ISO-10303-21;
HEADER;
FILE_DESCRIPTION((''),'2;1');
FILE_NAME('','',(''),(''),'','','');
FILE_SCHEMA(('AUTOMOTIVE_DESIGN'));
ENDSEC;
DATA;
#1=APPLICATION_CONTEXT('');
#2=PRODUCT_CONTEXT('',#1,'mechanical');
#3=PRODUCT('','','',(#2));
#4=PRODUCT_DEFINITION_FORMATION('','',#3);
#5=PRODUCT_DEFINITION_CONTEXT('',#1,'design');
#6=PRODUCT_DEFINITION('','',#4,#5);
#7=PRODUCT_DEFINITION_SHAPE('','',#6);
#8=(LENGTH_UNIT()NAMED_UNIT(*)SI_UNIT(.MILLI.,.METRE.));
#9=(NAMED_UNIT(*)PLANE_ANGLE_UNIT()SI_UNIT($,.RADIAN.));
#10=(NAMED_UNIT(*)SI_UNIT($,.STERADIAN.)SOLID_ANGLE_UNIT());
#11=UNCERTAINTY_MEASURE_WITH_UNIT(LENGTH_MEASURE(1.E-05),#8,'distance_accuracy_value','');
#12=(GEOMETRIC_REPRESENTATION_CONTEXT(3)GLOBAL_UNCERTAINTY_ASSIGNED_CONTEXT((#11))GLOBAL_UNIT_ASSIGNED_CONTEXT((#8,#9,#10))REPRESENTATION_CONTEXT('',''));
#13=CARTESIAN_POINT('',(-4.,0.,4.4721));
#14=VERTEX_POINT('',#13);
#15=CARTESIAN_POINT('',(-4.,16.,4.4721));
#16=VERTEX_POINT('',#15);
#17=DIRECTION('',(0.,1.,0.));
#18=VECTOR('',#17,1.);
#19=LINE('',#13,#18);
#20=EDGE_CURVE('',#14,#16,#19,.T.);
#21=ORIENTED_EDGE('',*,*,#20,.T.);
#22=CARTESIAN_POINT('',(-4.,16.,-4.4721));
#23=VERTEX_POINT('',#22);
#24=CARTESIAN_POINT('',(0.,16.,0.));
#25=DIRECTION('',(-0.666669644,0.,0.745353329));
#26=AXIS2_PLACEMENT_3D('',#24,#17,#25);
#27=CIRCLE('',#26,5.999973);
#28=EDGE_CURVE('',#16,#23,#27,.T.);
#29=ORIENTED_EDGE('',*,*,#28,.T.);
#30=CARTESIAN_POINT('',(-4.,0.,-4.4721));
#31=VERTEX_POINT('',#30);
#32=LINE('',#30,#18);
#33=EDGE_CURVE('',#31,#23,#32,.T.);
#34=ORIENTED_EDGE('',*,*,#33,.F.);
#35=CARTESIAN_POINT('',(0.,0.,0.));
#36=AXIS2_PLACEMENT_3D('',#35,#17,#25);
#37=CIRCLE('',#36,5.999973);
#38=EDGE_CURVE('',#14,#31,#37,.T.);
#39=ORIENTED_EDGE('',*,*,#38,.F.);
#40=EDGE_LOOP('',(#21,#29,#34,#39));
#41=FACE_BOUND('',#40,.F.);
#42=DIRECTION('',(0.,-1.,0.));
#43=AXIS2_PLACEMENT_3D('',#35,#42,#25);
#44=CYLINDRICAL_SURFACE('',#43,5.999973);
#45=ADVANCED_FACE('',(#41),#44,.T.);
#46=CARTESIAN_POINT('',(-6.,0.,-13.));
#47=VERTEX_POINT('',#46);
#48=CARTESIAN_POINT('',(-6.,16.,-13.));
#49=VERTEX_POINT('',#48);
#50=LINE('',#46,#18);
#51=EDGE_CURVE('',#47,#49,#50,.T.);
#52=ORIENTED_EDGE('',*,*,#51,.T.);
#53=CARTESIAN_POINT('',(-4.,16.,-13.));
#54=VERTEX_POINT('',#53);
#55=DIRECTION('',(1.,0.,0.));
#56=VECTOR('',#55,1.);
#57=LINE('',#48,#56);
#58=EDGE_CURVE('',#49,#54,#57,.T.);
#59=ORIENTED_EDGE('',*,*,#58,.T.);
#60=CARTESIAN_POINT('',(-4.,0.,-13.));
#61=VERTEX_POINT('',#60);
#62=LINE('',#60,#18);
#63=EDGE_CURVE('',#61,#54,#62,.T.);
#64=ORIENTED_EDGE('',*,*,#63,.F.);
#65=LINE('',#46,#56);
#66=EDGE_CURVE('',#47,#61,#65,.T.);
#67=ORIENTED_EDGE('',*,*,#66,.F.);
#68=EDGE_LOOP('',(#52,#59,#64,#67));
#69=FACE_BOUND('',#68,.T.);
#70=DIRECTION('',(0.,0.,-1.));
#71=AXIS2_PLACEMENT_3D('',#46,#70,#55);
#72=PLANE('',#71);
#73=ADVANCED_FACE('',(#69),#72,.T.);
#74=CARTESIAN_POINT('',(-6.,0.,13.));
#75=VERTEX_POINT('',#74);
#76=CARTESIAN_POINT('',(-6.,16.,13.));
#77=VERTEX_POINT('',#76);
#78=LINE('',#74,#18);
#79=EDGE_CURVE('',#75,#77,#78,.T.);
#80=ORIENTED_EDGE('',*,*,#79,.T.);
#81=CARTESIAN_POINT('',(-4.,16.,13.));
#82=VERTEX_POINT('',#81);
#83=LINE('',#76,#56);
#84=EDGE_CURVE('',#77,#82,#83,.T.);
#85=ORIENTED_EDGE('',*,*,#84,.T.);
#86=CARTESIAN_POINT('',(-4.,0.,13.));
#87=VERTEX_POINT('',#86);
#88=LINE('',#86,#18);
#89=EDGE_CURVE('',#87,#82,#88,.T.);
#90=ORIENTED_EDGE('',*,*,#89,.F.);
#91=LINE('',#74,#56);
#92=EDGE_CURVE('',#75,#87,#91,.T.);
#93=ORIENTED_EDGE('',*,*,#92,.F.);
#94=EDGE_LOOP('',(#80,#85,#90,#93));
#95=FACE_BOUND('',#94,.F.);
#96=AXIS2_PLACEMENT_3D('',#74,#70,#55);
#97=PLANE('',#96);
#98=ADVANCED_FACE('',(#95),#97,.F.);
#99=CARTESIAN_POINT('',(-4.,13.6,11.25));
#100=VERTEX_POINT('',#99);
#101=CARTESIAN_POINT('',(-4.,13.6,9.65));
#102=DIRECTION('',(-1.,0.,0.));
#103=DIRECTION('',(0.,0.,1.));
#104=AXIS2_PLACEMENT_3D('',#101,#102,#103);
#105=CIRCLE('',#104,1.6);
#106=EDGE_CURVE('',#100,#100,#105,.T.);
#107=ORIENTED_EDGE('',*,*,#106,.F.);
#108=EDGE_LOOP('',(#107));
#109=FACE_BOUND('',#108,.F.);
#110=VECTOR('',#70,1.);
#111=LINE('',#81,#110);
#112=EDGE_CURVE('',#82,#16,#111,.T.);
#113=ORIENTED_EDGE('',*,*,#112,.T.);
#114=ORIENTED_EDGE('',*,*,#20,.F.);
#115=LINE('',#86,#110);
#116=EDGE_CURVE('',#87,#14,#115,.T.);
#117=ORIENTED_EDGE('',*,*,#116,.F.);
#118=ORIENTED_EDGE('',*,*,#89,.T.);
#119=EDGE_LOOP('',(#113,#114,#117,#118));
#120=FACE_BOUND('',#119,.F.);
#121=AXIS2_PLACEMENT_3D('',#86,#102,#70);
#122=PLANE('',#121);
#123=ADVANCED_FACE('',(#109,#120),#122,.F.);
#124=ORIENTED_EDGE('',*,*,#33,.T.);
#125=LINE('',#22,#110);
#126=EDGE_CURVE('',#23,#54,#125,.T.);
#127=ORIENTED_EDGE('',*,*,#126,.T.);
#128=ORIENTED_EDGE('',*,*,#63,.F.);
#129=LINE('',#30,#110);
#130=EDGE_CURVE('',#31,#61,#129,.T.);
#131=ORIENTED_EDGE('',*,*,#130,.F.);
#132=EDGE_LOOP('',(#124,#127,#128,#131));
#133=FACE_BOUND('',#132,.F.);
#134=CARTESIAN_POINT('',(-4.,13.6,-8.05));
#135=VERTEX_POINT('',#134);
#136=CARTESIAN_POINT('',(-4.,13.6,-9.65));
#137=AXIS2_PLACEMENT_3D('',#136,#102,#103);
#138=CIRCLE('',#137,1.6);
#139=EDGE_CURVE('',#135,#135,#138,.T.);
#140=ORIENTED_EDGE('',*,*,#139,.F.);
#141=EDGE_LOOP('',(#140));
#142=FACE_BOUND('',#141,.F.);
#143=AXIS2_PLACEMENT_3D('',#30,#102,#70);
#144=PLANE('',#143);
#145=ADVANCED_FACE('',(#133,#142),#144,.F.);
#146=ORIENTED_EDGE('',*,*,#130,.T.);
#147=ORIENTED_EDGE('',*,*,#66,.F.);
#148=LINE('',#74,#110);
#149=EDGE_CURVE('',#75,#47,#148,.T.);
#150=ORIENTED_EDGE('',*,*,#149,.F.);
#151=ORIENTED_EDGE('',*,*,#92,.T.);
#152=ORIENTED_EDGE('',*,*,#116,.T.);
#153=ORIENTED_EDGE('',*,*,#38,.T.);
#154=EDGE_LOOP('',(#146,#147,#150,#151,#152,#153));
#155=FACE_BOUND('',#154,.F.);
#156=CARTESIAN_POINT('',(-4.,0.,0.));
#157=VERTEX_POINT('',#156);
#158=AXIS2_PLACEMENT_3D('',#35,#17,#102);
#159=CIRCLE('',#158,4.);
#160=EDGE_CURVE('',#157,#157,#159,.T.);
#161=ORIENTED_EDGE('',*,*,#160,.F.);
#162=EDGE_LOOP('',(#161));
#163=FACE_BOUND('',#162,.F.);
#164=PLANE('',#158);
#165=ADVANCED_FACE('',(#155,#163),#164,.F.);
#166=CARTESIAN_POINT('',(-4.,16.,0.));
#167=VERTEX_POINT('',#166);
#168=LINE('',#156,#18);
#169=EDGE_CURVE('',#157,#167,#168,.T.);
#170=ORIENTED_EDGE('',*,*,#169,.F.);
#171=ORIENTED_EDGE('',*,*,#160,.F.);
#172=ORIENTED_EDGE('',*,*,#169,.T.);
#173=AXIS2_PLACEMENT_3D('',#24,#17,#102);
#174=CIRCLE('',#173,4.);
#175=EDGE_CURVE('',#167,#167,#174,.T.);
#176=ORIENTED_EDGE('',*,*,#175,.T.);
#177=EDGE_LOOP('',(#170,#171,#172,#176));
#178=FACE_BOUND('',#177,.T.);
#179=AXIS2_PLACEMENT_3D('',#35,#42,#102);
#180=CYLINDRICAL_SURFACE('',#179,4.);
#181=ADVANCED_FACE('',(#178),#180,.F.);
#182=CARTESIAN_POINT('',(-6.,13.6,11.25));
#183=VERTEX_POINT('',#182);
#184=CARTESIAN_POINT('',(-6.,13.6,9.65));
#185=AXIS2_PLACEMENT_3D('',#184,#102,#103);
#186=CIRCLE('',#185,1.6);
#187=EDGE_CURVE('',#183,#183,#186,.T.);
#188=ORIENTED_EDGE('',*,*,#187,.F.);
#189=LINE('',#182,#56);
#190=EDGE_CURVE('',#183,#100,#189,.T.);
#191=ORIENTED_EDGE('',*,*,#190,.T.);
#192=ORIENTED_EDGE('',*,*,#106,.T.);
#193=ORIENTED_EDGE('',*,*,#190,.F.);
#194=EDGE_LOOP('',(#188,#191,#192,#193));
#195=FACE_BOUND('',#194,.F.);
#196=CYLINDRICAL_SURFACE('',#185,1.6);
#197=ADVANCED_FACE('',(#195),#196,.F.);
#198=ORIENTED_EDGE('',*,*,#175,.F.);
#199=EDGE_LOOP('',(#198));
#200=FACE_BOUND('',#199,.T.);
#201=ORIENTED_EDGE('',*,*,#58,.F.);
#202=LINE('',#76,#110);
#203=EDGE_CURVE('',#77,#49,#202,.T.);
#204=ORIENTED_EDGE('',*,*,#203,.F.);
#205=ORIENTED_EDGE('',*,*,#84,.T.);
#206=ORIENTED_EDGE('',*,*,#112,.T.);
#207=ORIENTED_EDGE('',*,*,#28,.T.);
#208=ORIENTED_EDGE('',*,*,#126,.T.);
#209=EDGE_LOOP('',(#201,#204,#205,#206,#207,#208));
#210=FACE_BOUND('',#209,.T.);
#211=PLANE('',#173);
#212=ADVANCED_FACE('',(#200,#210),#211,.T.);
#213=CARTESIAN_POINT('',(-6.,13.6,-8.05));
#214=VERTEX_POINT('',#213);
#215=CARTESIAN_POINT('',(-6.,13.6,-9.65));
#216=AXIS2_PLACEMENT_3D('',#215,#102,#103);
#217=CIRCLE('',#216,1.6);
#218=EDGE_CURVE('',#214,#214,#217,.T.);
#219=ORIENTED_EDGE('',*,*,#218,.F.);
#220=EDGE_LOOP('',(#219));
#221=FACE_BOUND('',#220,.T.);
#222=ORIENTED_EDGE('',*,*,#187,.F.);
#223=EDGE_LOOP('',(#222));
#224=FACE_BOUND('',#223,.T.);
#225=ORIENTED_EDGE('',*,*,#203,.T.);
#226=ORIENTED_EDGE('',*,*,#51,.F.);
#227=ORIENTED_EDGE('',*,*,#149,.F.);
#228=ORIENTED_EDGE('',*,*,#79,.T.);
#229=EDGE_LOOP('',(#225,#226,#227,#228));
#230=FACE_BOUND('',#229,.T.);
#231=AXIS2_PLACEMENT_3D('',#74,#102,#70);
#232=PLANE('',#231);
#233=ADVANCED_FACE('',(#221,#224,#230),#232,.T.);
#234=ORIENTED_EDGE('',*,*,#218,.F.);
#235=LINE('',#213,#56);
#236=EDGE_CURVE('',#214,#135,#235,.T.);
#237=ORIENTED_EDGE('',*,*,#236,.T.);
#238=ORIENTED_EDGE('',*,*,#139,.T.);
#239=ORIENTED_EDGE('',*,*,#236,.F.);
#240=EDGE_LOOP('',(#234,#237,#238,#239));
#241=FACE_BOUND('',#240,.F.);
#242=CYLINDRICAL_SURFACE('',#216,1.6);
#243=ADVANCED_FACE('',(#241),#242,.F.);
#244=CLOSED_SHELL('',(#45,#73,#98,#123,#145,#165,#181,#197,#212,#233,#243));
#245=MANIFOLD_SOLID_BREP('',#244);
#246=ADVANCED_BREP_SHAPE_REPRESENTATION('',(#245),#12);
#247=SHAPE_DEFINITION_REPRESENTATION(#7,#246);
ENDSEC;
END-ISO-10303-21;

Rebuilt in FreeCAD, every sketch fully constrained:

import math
import FreeCAD as App
import Part
import Sketcher
Q = App.Units.Quantity

doc = App.newDocument("Part")
body = doc.addObject("PartDesign::Body", "Body")

sketch1 = body.newObject("Sketcher::SketchObject", "Sketch")
sketch1.AttachmentSupport = (doc.getObject("XZ_Plane"), [""])
sketch1.MapMode = "FlatFace"
sketch1.addGeometry([
    Part.LineSegment(App.Vector(-6, -13, 0), App.Vector(-6, 13, 0)),
    Part.LineSegment(App.Vector(-6, 13, 0), App.Vector(-4, 13, 0)),
    Part.LineSegment(App.Vector(-4, 13, 0), App.Vector(-4, 4.5, 0)),
    Part.ArcOfCircle(Part.Circle(App.Vector(0, 0, 0), App.Vector(0, 0, 1), 6), math.radians(-132), math.radians(132)),
    Part.LineSegment(App.Vector(-4, -4.5, 0), App.Vector(-4, -13, 0)),
    Part.LineSegment(App.Vector(-4, -13, 0), App.Vector(-6, -13, 0)),
    Part.Circle(App.Vector(0, 0, 0), App.Vector(0, 0, 1), 4),
], False)
sketch1.addConstraint([
    Sketcher.Constraint("Coincident", 0, 2, 1, 1),
    Sketcher.Constraint("Coincident", 1, 2, 2, 1),
    Sketcher.Constraint("Coincident", 2, 2, 3, 2),
    Sketcher.Constraint("Coincident", 3, 1, 4, 1),
    Sketcher.Constraint("Coincident", 4, 2, 5, 1),
    Sketcher.Constraint("Coincident", 5, 2, 0, 1),
    Sketcher.Constraint("Vertical", 0),
    Sketcher.Constraint("Horizontal", 1),
    Sketcher.Constraint("Vertical", 2),
    Sketcher.Constraint("Vertical", 4),
    Sketcher.Constraint("Horizontal", 5),
    Sketcher.Constraint("Coincident", 3, 3, -1, 1),
    Sketcher.Constraint("Coincident", 6, 3, -1, 1),
    Sketcher.Constraint("Symmetric", 1, 2, 4, 2, -1),
    Sketcher.Constraint("Diameter", 6, Q("8 mm")),
    Sketcher.Constraint("DistanceX", 1, 1, 1, 2, Q("2 mm")),
    Sketcher.Constraint("DistanceY", 0, 1, 0, 2, Q("26 mm")),
    Sketcher.Constraint("Radius", 3, Q("6 mm")),
    Sketcher.Constraint("DistanceX", 0, 2, -1, 1, Q("6 mm")),
])
pad1 = body.newObject("PartDesign::Pad", "Pad")
pad1.Profile = sketch1
pad1.Length = 16
pad1.Reversed = True

sketch2 = body.newObject("Sketcher::SketchObject", "Sketch001")
sketch2.AttachmentSupport = (doc.getObject("YZ_Plane"), [""])
sketch2.MapMode = "FlatFace"
sketch2.AttachmentOffset = App.Placement(App.Vector(0, 0, -6), App.Rotation())
sketch2.addGeometry([
    Part.Circle(App.Vector(13.6, -9.7, 0), App.Vector(0, 0, 1), 1.6),
    Part.Circle(App.Vector(13.6, 9.7, 0), App.Vector(0, 0, 1), 1.6),
], False)
sketch2.addConstraint([
    Sketcher.Constraint("Equal", 0, 1),
    Sketcher.Constraint("Symmetric", 0, 3, 1, 3, -1),
    Sketcher.Constraint("Diameter", 0, Q("3.2 mm")),
    Sketcher.Constraint("DistanceX", -1, 1, 0, 3, Q("13.6 mm")),
    Sketcher.Constraint("DistanceY", 0, 3, 1, 3, Q("19.3 mm")),
])
pocket1 = body.newObject("PartDesign::Pocket", "Pocket")
pocket1.Profile = sketch2
pocket1.Length = 16
pocket1.Reversed = True

doc.recompute()
